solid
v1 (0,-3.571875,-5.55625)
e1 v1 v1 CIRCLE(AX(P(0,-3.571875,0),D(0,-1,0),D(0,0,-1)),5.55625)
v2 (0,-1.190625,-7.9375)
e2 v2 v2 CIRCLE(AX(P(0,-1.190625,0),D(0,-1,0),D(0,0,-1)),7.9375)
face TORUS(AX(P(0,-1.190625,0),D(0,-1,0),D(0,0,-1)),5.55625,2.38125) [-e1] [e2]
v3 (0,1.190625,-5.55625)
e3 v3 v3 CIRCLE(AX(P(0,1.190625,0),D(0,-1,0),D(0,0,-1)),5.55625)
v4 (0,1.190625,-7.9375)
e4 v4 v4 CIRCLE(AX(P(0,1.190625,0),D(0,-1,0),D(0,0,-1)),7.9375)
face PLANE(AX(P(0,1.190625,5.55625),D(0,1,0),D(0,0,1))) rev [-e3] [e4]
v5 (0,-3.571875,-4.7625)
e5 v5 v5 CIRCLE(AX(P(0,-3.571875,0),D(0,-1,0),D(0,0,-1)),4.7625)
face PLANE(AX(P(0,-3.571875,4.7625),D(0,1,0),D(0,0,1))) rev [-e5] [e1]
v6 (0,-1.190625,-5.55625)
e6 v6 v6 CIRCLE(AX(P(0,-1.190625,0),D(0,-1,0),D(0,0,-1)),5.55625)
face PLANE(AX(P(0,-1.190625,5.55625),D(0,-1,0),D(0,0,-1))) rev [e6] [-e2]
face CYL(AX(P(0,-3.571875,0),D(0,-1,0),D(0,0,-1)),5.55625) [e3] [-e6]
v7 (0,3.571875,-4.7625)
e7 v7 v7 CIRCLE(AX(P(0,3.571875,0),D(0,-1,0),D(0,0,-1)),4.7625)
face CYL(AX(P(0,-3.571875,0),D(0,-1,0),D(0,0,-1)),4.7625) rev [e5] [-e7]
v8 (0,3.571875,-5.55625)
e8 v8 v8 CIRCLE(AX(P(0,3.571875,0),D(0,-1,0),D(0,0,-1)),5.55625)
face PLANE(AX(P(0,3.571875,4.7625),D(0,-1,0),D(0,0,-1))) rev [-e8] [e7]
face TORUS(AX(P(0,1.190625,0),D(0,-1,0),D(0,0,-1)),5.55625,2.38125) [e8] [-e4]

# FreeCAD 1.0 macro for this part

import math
import FreeCAD as App
import Part
import Sketcher
from FreeCAD import Vector
Q = App.Units.Quantity

doc = App.newDocument("Part")
body = doc.addObject("PartDesign::Body", "Body")

# Sketch on YZ plane
sketch1 = doc.addObject("Sketcher::SketchObject", "Sketch")
body.addObject(sketch1)
sketch1.AttachmentSupport = (doc.YZ_Plane, [""])
sketch1.MapMode = "FlatFace"
sketch1.addGeometry([
    Part.LineSegment(Vector(-3.6, 4.8, 0), Vector(3.6, 4.8, 0)),  # 0
    Part.LineSegment(Vector(3.6, 4.8, 0), Vector(3.6, 5.6, 0)),  # 1
    Part.ArcOfCircle(Part.Circle(Vector(1.2, 5.6, 0), Vector(0, 0, 1), 2.4), math.radians(0), math.radians(90)),  # 2
    Part.LineSegment(Vector(1.2, 7.9, 0), Vector(1.2, 5.6, 0)),  # 3
    Part.LineSegment(Vector(1.2, 5.6, 0), Vector(-1.2, 5.6, 0)),  # 4
    Part.LineSegment(Vector(-1.2, 5.6, 0), Vector(-1.2, 7.9, 0)),  # 5
    Part.ArcOfCircle(Part.Circle(Vector(-1.2, 5.6, 0), Vector(0, 0, 1), 2.4), math.radians(90), math.radians(180)),  # 6
    Part.LineSegment(Vector(-3.6, 5.6, 0), Vector(-3.6, 4.8, 0)),  # 7
], False)
sketch1.addConstraint([
    Sketcher.Constraint("Coincident", 0, 2, 1, 1),
    Sketcher.Constraint("Tangent", 1, 2, 2, 1),
    Sketcher.Constraint("Coincident", 2, 2, 3, 1),
    Sketcher.Constraint("Coincident", 3, 2, 4, 1),
    Sketcher.Constraint("Coincident", 4, 2, 5, 1),
    Sketcher.Constraint("Coincident", 5, 2, 6, 1),
    Sketcher.Constraint("Tangent", 6, 2, 7, 1),
    Sketcher.Constraint("Coincident", 7, 2, 0, 1),
    Sketcher.Constraint("Horizontal", 0),
    Sketcher.Constraint("Vertical", 1),
    Sketcher.Constraint("Vertical", 3),
    Sketcher.Constraint("Horizontal", 4),
    Sketcher.Constraint("Vertical", 5),
    Sketcher.Constraint("Vertical", 7),
    Sketcher.Constraint("Coincident", 3, 2, 2, 3),
    Sketcher.Constraint("Coincident", 4, 2, 6, 3),
    Sketcher.Constraint("Equal", 2, 6),
    Sketcher.Constraint("Equal", 4, 3),
    Sketcher.Constraint("Radius", 2, Q("0.09375 in")),
    Sketcher.Constraint("DistanceY", 1, 1, 1, 2, Q("0.03125 in")),
    Sketcher.Constraint("DistanceX", -1, 1, 2, 3, Q("0.046875 in")),
    Sketcher.Constraint("DistanceY", -1, 1, 2, 3, Q("0.21875 in")),
])
revolution = doc.addObject("PartDesign::Revolution", "Revolution")
body.addObject(revolution)
revolution.Profile = sketch1
revolution.ReferenceAxis = (sketch1, ["H_Axis"])
revolution.Angle = 360

doc.recompute()
